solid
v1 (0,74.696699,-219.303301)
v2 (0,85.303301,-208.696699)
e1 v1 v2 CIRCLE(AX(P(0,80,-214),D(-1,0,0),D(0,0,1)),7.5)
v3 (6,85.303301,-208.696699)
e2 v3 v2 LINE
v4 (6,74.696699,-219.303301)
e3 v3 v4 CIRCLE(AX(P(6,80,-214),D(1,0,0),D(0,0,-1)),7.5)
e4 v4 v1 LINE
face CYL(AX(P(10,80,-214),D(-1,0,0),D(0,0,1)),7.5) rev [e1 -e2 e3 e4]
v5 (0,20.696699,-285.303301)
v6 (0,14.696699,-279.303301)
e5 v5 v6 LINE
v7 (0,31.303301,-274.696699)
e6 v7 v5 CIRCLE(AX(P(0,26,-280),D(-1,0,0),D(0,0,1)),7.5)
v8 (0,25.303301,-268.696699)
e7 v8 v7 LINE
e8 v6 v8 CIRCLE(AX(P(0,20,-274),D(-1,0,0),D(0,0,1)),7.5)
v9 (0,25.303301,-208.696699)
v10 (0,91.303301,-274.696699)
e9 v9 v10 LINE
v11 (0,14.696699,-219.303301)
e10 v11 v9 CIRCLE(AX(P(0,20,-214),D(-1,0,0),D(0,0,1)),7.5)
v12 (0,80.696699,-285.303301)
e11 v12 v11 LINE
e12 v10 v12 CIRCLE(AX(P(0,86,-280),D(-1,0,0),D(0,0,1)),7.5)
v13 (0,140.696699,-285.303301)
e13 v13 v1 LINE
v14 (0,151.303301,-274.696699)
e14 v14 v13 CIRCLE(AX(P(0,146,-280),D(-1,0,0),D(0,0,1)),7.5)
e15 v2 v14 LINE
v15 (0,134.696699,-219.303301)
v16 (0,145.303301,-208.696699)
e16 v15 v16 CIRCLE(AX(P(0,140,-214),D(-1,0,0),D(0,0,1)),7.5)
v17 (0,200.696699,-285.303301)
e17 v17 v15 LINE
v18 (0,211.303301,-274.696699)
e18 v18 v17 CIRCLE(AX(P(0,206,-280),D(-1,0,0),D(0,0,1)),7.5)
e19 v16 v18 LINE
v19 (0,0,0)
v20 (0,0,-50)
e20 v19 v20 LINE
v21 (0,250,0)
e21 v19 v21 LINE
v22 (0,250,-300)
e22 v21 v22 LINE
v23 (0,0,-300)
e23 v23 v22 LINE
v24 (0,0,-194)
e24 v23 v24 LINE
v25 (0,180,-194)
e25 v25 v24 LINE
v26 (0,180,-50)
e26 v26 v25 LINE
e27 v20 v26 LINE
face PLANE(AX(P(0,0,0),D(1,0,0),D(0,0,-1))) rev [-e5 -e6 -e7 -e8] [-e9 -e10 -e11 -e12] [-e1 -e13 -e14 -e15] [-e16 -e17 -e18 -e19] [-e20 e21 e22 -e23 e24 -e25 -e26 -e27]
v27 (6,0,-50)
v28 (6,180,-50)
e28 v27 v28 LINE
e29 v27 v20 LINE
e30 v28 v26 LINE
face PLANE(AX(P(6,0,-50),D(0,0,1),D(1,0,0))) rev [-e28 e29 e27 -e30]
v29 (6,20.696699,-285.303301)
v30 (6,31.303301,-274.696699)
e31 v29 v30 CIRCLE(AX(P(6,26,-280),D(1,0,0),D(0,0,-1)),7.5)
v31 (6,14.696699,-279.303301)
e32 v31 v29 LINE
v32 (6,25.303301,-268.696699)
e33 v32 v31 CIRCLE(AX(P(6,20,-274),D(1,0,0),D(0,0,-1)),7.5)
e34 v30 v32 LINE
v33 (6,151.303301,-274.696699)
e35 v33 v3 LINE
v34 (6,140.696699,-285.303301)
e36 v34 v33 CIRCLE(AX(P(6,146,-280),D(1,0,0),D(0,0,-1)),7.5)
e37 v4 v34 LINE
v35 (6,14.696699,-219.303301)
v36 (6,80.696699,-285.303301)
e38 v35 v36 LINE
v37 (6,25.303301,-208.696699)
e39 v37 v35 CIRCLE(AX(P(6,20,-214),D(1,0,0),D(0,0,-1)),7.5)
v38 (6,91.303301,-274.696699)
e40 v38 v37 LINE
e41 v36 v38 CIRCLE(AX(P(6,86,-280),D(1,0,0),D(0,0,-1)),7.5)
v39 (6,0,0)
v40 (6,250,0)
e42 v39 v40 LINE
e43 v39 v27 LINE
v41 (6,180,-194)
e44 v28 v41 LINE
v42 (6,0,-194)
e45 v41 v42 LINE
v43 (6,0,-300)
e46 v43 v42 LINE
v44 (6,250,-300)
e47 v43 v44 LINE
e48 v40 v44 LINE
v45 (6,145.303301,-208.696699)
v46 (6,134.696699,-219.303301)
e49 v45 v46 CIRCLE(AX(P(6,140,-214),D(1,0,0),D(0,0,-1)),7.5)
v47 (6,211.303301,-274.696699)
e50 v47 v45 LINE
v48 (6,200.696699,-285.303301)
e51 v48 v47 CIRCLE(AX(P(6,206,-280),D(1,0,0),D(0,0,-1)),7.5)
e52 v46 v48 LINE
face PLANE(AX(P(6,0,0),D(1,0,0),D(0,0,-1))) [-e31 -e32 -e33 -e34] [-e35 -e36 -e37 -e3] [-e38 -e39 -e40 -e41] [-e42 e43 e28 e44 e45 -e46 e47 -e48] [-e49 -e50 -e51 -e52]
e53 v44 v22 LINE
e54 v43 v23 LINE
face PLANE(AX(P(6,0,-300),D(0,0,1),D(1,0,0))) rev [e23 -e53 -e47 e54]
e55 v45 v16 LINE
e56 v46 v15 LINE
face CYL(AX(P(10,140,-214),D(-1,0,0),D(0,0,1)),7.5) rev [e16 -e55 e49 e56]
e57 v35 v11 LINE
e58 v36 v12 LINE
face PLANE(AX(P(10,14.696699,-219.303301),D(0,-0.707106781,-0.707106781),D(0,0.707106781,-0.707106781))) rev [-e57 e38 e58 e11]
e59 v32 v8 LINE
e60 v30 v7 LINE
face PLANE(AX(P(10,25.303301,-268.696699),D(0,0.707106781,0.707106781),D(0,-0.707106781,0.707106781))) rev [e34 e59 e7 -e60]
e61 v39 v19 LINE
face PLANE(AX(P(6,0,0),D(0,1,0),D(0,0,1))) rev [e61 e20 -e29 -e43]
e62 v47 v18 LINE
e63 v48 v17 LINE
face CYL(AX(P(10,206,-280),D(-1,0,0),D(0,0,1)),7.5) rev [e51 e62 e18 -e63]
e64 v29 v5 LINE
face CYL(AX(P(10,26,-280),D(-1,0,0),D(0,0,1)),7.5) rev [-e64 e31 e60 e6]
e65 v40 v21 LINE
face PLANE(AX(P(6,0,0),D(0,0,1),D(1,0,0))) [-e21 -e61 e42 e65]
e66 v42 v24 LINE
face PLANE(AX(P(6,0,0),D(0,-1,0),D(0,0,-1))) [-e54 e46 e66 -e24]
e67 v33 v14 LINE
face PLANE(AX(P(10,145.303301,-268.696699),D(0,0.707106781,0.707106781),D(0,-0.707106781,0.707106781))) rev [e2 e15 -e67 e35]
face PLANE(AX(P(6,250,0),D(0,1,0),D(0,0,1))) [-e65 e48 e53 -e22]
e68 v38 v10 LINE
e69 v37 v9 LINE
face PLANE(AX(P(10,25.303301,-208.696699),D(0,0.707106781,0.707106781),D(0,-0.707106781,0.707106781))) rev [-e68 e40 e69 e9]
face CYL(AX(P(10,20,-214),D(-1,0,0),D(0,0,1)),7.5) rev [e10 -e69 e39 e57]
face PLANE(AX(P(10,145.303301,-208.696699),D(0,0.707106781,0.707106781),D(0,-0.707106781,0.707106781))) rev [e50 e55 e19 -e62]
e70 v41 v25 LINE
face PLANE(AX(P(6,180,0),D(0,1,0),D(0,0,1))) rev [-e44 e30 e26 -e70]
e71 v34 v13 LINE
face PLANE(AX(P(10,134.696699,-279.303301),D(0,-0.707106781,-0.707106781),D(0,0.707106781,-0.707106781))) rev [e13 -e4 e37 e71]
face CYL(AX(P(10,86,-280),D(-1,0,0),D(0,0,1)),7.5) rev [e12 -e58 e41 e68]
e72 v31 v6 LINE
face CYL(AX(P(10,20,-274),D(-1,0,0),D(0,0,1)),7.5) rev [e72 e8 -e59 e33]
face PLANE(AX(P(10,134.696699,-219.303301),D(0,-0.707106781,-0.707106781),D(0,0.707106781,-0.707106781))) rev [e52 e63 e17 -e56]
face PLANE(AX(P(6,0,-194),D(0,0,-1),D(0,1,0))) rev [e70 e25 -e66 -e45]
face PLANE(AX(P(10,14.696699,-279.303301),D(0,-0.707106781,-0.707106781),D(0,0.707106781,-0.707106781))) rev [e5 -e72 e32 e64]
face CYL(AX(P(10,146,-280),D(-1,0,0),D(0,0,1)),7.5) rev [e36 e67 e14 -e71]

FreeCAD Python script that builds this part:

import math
import FreeCAD as App
import Part
import Sketcher
Q = App.Units.Quantity


def add_polygon(sketch, points):
    """Adds a closed chain of lines whose ends are joined by coincident constraints."""
    first, n = sketch.GeometryCount, len(points)
    for a, b in zip(points, points[1:] + points[:1]):
        sketch.addGeometry(Part.LineSegment(App.Vector(*a, 0), App.Vector(*b, 0)), False)
    for i in range(n):
        sketch.addConstraint(Sketcher.Constraint("Coincident", first + i, 2, first + (i + 1) % n, 1))

doc = App.newDocument("Part")
params = doc.addObject("Spreadsheet::Sheet", "Params")
for row, (alias, value) in enumerate([
    ("sketch1_radius", "7.5 mm"),
    ("sketch1_width", "180 mm"),
    ("sketch1_width2", "250 mm"),
    ("sketch1_height", "50 mm"),
    ("sketch1_height2", "144 mm"),
    ("pad1_length", "6 mm"),
    ("sketch2_height", "106 mm"),
    ("pad2_length", "6 mm"),
    ("sketch3_radius", "7.5 mm"),
    ("pocket1_length", "10 mm"),
    ("linearpattern_pitch", "60 mm"),
], start=1):
    params.set(f"A{row}", alias)
    params.set(f"B{row}", "=" + value)
    params.setAlias(f"B{row}", alias)

body = doc.addObject("PartDesign::Body", "Body")

sketch1 = body.newObject("Sketcher::SketchObject", "Sketch")
sketch1.AttachmentSupport = (doc.getObject("YZ_Plane"), [""])
sketch1.MapMode = "FlatFace"
add_polygon(sketch1, [(0, 0), (0, -50), (180, -50), (180, -194), (0, -194), (0, -300), (250, -300), (250, 0)])
sketch1.addGeometry(Part.ArcOfCircle(Part.Circle(App.Vector(20, -280, 0), App.Vector(0, 0, 1), 7.5), math.radians(135), math.radians(315)), False)
sketch1.addGeometry(Part.LineSegment(App.Vector(14.696699, -274.696699, 0), App.Vector(80.696699, -208.696699, 0)), False)
sketch1.addGeometry(Part.ArcOfCircle(Part.Circle(App.Vector(86, -214, 0), App.Vector(0, 0, 1), 7.5), math.radians(-45), math.radians(135)), False)
sketch1.addGeometry(Part.LineSegment(App.Vector(91.303301, -219.303301, 0), App.Vector(25.303301, -285.303301, 0)), False)
sketch1.addConstraint([
    Sketcher.Constraint("Tangent", 8, 1, 9, 1),
    Sketcher.Constraint("Tangent", 9, 2, 10, 2),
    Sketcher.Constraint("Tangent", 10, 1, 11, 1),
    Sketcher.Constraint("Tangent", 11, 2, 8, 2),
    Sketcher.Constraint("Vertical", 0),
    Sketcher.Constraint("Horizontal", 1),
    Sketcher.Constraint("Vertical", 2),
    Sketcher.Constraint("Horizontal", 3),
    Sketcher.Constraint("Vertical", 4),
    Sketcher.Constraint("Horizontal", 5),
    Sketcher.Constraint("Vertical", 6),
    Sketcher.Constraint("Horizontal", 7),
    Sketcher.Constraint("Coincident", 7, 2, -1, 1),
    Sketcher.Constraint("Equal", 8, 10),
    Sketcher.Constraint("PointOnObject", 3, 2, -2),
    Sketcher.Constraint("Radius", 8, 7.5),
    Sketcher.Constraint("DistanceX", 1, 1, 1, 2, 180.0),
    Sketcher.Constraint("DistanceX", 5, 1, 5, 2, 250.0),
    Sketcher.Constraint("DistanceY", 0, 2, 0, 1, 50.0),
    Sketcher.Constraint("DistanceY", 2, 2, 2, 1, 144.0),
    Sketcher.Constraint("DistanceY", 4, 2, 4, 1, 106.0),
    Sketcher.Constraint("Angle", 9, Q("45 deg")),
    Sketcher.Constraint("DistanceX", -1, 1, 8, 3, 20.0),
    Sketcher.Constraint("DistanceY", 8, 3, -1, 1, 280.0),
    Sketcher.Constraint("DistanceX", -1, 1, 10, 3, 86.0),
])
sketch1.setExpression("Constraints[23]", "Params.sketch1_radius")
sketch1.setExpression("Constraints[24]", "Params.sketch1_width")
sketch1.setExpression("Constraints[25]", "Params.sketch1_width2")
sketch1.setExpression("Constraints[26]", "Params.sketch1_height")
sketch1.setExpression("Constraints[27]", "Params.sketch1_height2")
pad1 = body.newObject("PartDesign::Pad", "Pad")
pad1.Profile = sketch1
pad1.setExpression("Length", "Params.pad1_length")

sketch2 = body.newObject("Sketcher::SketchObject", "Sketch001")
sketch2.AttachmentSupport = (doc.getObject("YZ_Plane"), [""])
sketch2.MapMode = "FlatFace"
add_polygon(sketch2, [(107.951063, -300), (0, -300), (0, -194), (107.951063, -194)])
sketch2.addConstraint([
    Sketcher.Constraint("Horizontal", 0),
    Sketcher.Constraint("Vertical", 1),
    Sketcher.Constraint("Horizontal", 2),
    Sketcher.Constraint("Vertical", 3),
    Sketcher.Constraint("PointOnObject", 0, 2, -2),
    Sketcher.Constraint("DistanceY", 1, 1, 1, 2, 106.0),
    Sketcher.Constraint("DistanceY", 0, 2, -1, 1, 300.0),
    Sketcher.Constraint("DistanceX", 0, 2, 0, 1, 107.951063),
])
sketch2.setExpression("Constraints[9]", "Params.sketch2_height")
pad2 = body.newObject("PartDesign::Pad", "Pad001")
pad2.Profile = sketch2
pad2.setExpression("Length", "Params.pad2_length")

sketch3 = body.newObject("Sketcher::SketchObject", "Sketch002")
sketch3.AttachmentSupport = (doc.getObject("YZ_Plane"), [""])
sketch3.MapMode = "FlatFace"
sketch3.addGeometry([
    Part.LineSegment(App.Vector(80.696699, -285.303301, 0), App.Vector(14.696699, -219.303301, 0)),
    Part.ArcOfCircle(Part.Circle(App.Vector(20, -214, 0), App.Vector(0, 0, 1), 7.5), math.radians(45), math.radians(225)),
    Part.LineSegment(App.Vector(25.303301, -208.696699, 0), App.Vector(91.303301, -274.696699, 0)),
    Part.ArcOfCircle(Part.Circle(App.Vector(86, -280, 0), App.Vector(0, 0, 1), 7.5), math.radians(-135), math.radians(45)),
    Part.LineSegment(App.Vector(20.696699, -285.303301, 0), App.Vector(14.696699, -279.303301, 0)),
    Part.ArcOfCircle(Part.Circle(App.Vector(20, -274, 0), App.Vector(0, 0, 1), 7.5), math.radians(45), math.radians(225)),
    Part.LineSegment(App.Vector(25.303301, -268.696699, 0), App.Vector(31.303301, -274.696699, 0)),
    Part.ArcOfCircle(Part.Circle(App.Vector(26, -280, 0), App.Vector(0, 0, 1), 7.5), math.radians(-135), math.radians(45)),
    Part.LineSegment(App.Vector(267.303301, -208.696699, 0), App.Vector(273.303301, -214.696699, 0)),
    Part.ArcOfCircle(Part.Circle(App.Vector(268, -220, 0), App.Vector(0, 0, 1), 7.5), math.radians(-135), math.radians(45)),
    Part.LineSegment(App.Vector(262.696699, -225.303301, 0), App.Vector(256.696699, -219.303301, 0)),
    Part.ArcOfCircle(Part.Circle(App.Vector(262, -214, 0), App.Vector(0, 0, 1), 7.5), math.radians(45), math.radians(225)),
], False)
sketch3.addConstraint([
    Sketcher.Constraint("Tangent", 0, 2, 1, 2),
    Sketcher.Constraint("Tangent", 1, 1, 2, 1),
    Sketcher.Constraint("Tangent", 2, 2, 3, 2),
    Sketcher.Constraint("Tangent", 3, 1, 0, 1),
    Sketcher.Constraint("Tangent", 4, 2, 5, 2),
    Sketcher.Constraint("Tangent", 5, 1, 6, 1),
    Sketcher.Constraint("Tangent", 6, 2, 7, 2),
    Sketcher.Constraint("Tangent", 7, 1, 4, 1),
    Sketcher.Constraint("Tangent", 8, 2, 9, 2),
    Sketcher.Constraint("Tangent", 9, 1, 10, 1),
    Sketcher.Constraint("Tangent", 10, 2, 11, 2),
    Sketcher.Constraint("Tangent", 11, 1, 8, 1),
    Sketcher.Constraint("Equal", 1, 3),
    Sketcher.Constraint("Equal", 3, 5),
    Sketcher.Constraint("Equal", 5, 7),
    Sketcher.Constraint("Equal", 7, 9),
    Sketcher.Constraint("Equal", 9, 11),
    Sketcher.Constraint("Parallel", 2, 4),
    Sketcher.Constraint("Parallel", 6, 8),
    Sketcher.Constraint("Horizontal", 3, 3, 7, 3),
    Sketcher.Constraint("Horizontal", 1, 3, 11, 3),
    Sketcher.Constraint("Vertical", 1, 3, 5, 3),
    Sketcher.Constraint("Equal", 6, 8),
    Sketcher.Constraint("Radius", 1, 7.5),
    Sketcher.Constraint("Angle", 0, Q("135 deg")),
    Sketcher.Constraint("DistanceX", -1, 1, 1, 3, 20.0),
    Sketcher.Constraint("DistanceY", 1, 3, -1, 1, 214.0),
    Sketcher.Constraint("DistanceX", -1, 1, 3, 3, 86.0),
    Sketcher.Constraint("DistanceY", 5, 3, -1, 1, 274.0),
    Sketcher.Constraint("DistanceX", -1, 1, 9, 3, 268.0),
])
sketch3.setExpression("Constraints[23]", "Params.sketch3_radius")
pocket1 = body.newObject("PartDesign::Pocket", "Pocket")
pocket1.Profile = sketch3
pocket1.setExpression("Length", "Params.pocket1_length")
pocket1.Reversed = True
doc.recompute()

linearpattern = body.newObject("PartDesign::LinearPattern", "LinearPattern")
linearpattern.Originals = [pocket1]
linearpattern.Direction = (doc.getObject("Y_Axis"), [""])
linearpattern.Mode = "offset"
linearpattern.setExpression("Offset", "Params.linearpattern_pitch")
linearpattern.Occurrences = 3
body.Tip = linearpattern

doc.recompute()
